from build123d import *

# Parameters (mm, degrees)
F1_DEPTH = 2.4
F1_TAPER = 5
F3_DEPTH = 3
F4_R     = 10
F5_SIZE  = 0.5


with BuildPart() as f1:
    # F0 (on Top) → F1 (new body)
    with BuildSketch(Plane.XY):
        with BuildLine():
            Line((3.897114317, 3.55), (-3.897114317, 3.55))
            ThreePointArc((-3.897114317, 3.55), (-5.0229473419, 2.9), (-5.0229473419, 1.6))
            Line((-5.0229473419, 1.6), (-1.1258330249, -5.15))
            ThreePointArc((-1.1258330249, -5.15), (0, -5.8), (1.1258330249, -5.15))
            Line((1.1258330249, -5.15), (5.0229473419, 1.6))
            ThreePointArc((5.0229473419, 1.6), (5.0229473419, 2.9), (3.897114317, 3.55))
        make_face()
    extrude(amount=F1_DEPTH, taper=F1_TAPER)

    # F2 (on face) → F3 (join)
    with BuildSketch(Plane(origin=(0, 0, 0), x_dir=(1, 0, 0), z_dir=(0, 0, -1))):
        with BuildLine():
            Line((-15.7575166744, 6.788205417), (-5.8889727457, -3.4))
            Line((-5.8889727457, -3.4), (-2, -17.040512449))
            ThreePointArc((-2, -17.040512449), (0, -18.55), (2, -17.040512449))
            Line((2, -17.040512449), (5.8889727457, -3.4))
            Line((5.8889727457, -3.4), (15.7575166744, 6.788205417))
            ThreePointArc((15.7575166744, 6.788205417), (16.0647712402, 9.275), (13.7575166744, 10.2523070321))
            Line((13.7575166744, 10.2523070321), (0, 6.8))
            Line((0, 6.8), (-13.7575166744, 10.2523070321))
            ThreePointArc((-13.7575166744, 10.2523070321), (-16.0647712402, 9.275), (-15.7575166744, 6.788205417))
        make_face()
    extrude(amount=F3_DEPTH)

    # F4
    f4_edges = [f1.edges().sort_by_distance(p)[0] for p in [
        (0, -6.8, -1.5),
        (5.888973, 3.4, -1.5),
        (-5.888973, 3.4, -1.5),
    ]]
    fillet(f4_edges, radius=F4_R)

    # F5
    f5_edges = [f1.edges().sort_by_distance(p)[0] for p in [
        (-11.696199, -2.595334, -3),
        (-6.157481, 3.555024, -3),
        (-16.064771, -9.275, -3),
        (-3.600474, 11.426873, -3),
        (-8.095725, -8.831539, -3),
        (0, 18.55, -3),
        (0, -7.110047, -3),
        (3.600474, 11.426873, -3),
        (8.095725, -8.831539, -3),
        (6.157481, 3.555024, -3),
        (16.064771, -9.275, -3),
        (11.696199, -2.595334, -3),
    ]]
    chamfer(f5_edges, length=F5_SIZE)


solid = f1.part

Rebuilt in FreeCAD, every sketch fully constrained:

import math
import FreeCAD as App
import Part
import Sketcher

V = App.Vector
Q = App.Units.Quantity


def edges_at(feature, points):
    """Names of the edges that pass closest to the given points."""
    edges = feature.Shape.Edges
    near = lambda p: min(range(len(edges)), key=lambda i: edges[i].distToShape(Part.Vertex(*p))[0])
    return sorted({f"Edge{near(p) + 1}" for p in points})

doc = App.newDocument("Part")
body = doc.addObject("PartDesign::Body", "Body")

sketch1 = body.newObject("Sketcher::SketchObject", "Sketch")
sketch1.AttachmentSupport = (doc.getObject("XY_Plane"), [""])
sketch1.MapMode = "FlatFace"
sketch1.addGeometry([
    Part.LineSegment(V(3.9, 3.5, 0), V(-3.9, 3.5, 0)),
    Part.ArcOfCircle(Part.Circle(V(-3.9, 2.2, 0), V(0, 0, 1), 1.3), math.radians(90), math.radians(210)),
    Part.LineSegment(V(-5, 1.6, 0), V(-1.1, -5.2, 0)),
    Part.ArcOfCircle(Part.Circle(V(0, -4.5, 0), V(0, 0, 1), 1.3), math.radians(-150), math.radians(-30)),
    Part.LineSegment(V(1.1, -5.2, 0), V(5, 1.6, 0)),
    Part.ArcOfCircle(Part.Circle(V(3.9, 2.2, 0), V(0, 0, 1), 1.3), math.radians(-30), math.radians(90)),
], False)
sketch1.addConstraint([
    Sketcher.Constraint("Tangent", 0, 2, 1, 1),
    Sketcher.Constraint("Tangent", 1, 2, 2, 1),
    Sketcher.Constraint("Tangent", 2, 2, 3, 1),
    Sketcher.Constraint("Tangent", 3, 2, 4, 1),
    Sketcher.Constraint("Tangent", 4, 2, 5, 1),
    Sketcher.Constraint("Tangent", 5, 2, 0, 1),
    Sketcher.Constraint("Horizontal", 0),
    Sketcher.Constraint("Equal", 1, 3),
    Sketcher.Constraint("Equal", 3, 5),
    Sketcher.Constraint("Symmetric", 2, 2, 3, 2, -2),
    Sketcher.Constraint("Radius", 1, Q("1.3 mm")),
    Sketcher.Constraint("Angle", 2, Q("-60 deg")),
    Sketcher.Constraint("DistanceY", 3, 3, -1, 1, Q("4.5 mm")),
    Sketcher.Constraint("DistanceY", -1, 1, 1, 2, Q("1.6 mm")),
])
pad1 = body.newObject("PartDesign::Pad", "Pad")
pad1.Profile = sketch1
pad1.Length = 2.4
pad1.TaperAngle = -5

sketch2 = body.newObject("Sketcher::SketchObject", "Sketch001")
sketch2.AttachmentSupport = (doc.getObject("XY_Plane"), [""])
sketch2.MapMode = "FlatFace"
sketch2.addGeometry([
    Part.LineSegment(V(-15.757517, -6.788205, 0), V(-5.888973, 3.4, 0)),
    Part.LineSegment(V(-5.888973, 3.4, 0), V(-2, 17.040512, 0)),
    Part.ArcOfCircle(Part.Circle(V(0, 16.470303, 0), V(0, 0, 1), 2.079697), math.radians(15.913094), math.radians(164.086906)),
    Part.LineSegment(V(2, 17.040512, 0), V(5.888973, 3.4, 0)),
    Part.LineSegment(V(5.888973, 3.4, 0), V(15.757517, -6.788205, 0)),
    Part.ArcOfCircle(Part.Circle(V(14.263701, -8.235152, 0), V(0, 0, 1), 2.079697), math.radians(-104.086906), math.radians(44.086906)),
    Part.LineSegment(V(13.757517, -10.252307, 0), V(0, -6.8, 0)),
    Part.LineSegment(V(0, -6.8, 0), V(-13.757517, -10.252307, 0)),
    Part.ArcOfCircle(Part.Circle(V(-14.263701, -8.235152, 0), V(0, 0, 1), 2.079697), math.radians(135.913094), math.radians(284.086906)),
], False)
sketch2.addConstraint([
    Sketcher.Constraint("Coincident", 0, 2, 1, 1),
    Sketcher.Constraint("Coincident", 1, 2, 2, 2),
    Sketcher.Constraint("Coincident", 2, 1, 3, 1),
    Sketcher.Constraint("Coincident", 3, 2, 4, 1),
    Sketcher.Constraint("Coincident", 4, 2, 5, 2),
    Sketcher.Constraint("Coincident", 5, 1, 6, 1),
    Sketcher.Constraint("Coincident", 6, 2, 7, 1),
    Sketcher.Constraint("Coincident", 7, 2, 8, 2),
    Sketcher.Constraint("Coincident", 8, 1, 0, 1),
    Sketcher.Constraint("PointOnObject", 2, 3, -2),
    Sketcher.Constraint("PointOnObject", 6, 2, -2),
    Sketcher.Constraint("DistanceX", 1, 2, -1, 1, Q("2 mm")),
    Sketcher.Constraint("DistanceX", -1, 1, 2, 1, Q("2 mm")),
    Sketcher.Constraint("DistanceX", 5, 1, 4, 2, Q("2 mm")),
    Sketcher.Constraint("DistanceX", 8, 1, 7, 2, Q("2 mm")),
    Sketcher.Constraint("DistanceY", -1, 1, 0, 2, Q("3.4 mm")),
    Sketcher.Constraint("DistanceY", -1, 1, 3, 2, Q("3.4 mm")),
    Sketcher.Constraint("DistanceY", 6, 2, -1, 1, Q("6.8 mm")),
    Sketcher.Constraint("Radius", 2, Q("2.079697 mm")),
    Sketcher.Constraint("Radius", 5, Q("2.079697 mm")),
    Sketcher.Constraint("Radius", 8, Q("2.079697 mm")),
    Sketcher.Constraint("DistanceX", -1, 1, 5, 3, Q("14.263701 mm")),
    Sketcher.Constraint("DistanceX", 8, 3, -1, 1, Q("14.263701 mm")),
    Sketcher.Constraint("DistanceY", 5, 1, 4, 2, Q("3.464102 mm")),
    Sketcher.Constraint("DistanceY", 7, 2, 8, 1, Q("3.464102 mm")),
    Sketcher.Constraint("DistanceY", 5, 3, -1, 1, Q("8.235152 mm")),
    Sketcher.Constraint("DistanceY", 8, 3, -1, 1, Q("8.235152 mm")),
    Sketcher.Constraint("DistanceX", 8, 3, 0, 2, Q("8.374728 mm")),
    Sketcher.Constraint("DistanceX", 3, 2, 5, 3, Q("8.374728 mm")),
    Sketcher.Constraint("DistanceY", 4, 2, 2, 3, Q("23.258509 mm")),
])
pad2 = body.newObject("PartDesign::Pad", "Pad001")
pad2.Profile = sketch2
pad2.Length = 3
pad2.Reversed = True
doc.recompute()

fillet = body.newObject("PartDesign::Fillet", "Fillet")
fillet.Base = (pad2, edges_at(pad2, [(0, -6.8, -1.5), (5.889, 3.4, -1.5), (-5.889, 3.4, -1.5)]))
fillet.Radius = 10
doc.recompute()

chamfer = body.newObject("PartDesign::Chamfer", "Chamfer")
chamfer.Base = (fillet, edges_at(fillet, [
    (-11.696, -2.595, -3),
    (-6.157, 3.555, -3),
    (-16.065, -9.275, -3),
    (-3.6, 11.427, -3),
    (-8.096, -8.832, -3),
    (0, 18.55, -3),
    (0, -7.11, -3),
    (3.6, 11.427, -3),
    (8.096, -8.832, -3),
    (6.157, 3.555, -3),
    (16.065, -9.275, -3),
    (11.696, -2.595, -3),
]))
chamfer.Size = 0.5

doc.recompute()
